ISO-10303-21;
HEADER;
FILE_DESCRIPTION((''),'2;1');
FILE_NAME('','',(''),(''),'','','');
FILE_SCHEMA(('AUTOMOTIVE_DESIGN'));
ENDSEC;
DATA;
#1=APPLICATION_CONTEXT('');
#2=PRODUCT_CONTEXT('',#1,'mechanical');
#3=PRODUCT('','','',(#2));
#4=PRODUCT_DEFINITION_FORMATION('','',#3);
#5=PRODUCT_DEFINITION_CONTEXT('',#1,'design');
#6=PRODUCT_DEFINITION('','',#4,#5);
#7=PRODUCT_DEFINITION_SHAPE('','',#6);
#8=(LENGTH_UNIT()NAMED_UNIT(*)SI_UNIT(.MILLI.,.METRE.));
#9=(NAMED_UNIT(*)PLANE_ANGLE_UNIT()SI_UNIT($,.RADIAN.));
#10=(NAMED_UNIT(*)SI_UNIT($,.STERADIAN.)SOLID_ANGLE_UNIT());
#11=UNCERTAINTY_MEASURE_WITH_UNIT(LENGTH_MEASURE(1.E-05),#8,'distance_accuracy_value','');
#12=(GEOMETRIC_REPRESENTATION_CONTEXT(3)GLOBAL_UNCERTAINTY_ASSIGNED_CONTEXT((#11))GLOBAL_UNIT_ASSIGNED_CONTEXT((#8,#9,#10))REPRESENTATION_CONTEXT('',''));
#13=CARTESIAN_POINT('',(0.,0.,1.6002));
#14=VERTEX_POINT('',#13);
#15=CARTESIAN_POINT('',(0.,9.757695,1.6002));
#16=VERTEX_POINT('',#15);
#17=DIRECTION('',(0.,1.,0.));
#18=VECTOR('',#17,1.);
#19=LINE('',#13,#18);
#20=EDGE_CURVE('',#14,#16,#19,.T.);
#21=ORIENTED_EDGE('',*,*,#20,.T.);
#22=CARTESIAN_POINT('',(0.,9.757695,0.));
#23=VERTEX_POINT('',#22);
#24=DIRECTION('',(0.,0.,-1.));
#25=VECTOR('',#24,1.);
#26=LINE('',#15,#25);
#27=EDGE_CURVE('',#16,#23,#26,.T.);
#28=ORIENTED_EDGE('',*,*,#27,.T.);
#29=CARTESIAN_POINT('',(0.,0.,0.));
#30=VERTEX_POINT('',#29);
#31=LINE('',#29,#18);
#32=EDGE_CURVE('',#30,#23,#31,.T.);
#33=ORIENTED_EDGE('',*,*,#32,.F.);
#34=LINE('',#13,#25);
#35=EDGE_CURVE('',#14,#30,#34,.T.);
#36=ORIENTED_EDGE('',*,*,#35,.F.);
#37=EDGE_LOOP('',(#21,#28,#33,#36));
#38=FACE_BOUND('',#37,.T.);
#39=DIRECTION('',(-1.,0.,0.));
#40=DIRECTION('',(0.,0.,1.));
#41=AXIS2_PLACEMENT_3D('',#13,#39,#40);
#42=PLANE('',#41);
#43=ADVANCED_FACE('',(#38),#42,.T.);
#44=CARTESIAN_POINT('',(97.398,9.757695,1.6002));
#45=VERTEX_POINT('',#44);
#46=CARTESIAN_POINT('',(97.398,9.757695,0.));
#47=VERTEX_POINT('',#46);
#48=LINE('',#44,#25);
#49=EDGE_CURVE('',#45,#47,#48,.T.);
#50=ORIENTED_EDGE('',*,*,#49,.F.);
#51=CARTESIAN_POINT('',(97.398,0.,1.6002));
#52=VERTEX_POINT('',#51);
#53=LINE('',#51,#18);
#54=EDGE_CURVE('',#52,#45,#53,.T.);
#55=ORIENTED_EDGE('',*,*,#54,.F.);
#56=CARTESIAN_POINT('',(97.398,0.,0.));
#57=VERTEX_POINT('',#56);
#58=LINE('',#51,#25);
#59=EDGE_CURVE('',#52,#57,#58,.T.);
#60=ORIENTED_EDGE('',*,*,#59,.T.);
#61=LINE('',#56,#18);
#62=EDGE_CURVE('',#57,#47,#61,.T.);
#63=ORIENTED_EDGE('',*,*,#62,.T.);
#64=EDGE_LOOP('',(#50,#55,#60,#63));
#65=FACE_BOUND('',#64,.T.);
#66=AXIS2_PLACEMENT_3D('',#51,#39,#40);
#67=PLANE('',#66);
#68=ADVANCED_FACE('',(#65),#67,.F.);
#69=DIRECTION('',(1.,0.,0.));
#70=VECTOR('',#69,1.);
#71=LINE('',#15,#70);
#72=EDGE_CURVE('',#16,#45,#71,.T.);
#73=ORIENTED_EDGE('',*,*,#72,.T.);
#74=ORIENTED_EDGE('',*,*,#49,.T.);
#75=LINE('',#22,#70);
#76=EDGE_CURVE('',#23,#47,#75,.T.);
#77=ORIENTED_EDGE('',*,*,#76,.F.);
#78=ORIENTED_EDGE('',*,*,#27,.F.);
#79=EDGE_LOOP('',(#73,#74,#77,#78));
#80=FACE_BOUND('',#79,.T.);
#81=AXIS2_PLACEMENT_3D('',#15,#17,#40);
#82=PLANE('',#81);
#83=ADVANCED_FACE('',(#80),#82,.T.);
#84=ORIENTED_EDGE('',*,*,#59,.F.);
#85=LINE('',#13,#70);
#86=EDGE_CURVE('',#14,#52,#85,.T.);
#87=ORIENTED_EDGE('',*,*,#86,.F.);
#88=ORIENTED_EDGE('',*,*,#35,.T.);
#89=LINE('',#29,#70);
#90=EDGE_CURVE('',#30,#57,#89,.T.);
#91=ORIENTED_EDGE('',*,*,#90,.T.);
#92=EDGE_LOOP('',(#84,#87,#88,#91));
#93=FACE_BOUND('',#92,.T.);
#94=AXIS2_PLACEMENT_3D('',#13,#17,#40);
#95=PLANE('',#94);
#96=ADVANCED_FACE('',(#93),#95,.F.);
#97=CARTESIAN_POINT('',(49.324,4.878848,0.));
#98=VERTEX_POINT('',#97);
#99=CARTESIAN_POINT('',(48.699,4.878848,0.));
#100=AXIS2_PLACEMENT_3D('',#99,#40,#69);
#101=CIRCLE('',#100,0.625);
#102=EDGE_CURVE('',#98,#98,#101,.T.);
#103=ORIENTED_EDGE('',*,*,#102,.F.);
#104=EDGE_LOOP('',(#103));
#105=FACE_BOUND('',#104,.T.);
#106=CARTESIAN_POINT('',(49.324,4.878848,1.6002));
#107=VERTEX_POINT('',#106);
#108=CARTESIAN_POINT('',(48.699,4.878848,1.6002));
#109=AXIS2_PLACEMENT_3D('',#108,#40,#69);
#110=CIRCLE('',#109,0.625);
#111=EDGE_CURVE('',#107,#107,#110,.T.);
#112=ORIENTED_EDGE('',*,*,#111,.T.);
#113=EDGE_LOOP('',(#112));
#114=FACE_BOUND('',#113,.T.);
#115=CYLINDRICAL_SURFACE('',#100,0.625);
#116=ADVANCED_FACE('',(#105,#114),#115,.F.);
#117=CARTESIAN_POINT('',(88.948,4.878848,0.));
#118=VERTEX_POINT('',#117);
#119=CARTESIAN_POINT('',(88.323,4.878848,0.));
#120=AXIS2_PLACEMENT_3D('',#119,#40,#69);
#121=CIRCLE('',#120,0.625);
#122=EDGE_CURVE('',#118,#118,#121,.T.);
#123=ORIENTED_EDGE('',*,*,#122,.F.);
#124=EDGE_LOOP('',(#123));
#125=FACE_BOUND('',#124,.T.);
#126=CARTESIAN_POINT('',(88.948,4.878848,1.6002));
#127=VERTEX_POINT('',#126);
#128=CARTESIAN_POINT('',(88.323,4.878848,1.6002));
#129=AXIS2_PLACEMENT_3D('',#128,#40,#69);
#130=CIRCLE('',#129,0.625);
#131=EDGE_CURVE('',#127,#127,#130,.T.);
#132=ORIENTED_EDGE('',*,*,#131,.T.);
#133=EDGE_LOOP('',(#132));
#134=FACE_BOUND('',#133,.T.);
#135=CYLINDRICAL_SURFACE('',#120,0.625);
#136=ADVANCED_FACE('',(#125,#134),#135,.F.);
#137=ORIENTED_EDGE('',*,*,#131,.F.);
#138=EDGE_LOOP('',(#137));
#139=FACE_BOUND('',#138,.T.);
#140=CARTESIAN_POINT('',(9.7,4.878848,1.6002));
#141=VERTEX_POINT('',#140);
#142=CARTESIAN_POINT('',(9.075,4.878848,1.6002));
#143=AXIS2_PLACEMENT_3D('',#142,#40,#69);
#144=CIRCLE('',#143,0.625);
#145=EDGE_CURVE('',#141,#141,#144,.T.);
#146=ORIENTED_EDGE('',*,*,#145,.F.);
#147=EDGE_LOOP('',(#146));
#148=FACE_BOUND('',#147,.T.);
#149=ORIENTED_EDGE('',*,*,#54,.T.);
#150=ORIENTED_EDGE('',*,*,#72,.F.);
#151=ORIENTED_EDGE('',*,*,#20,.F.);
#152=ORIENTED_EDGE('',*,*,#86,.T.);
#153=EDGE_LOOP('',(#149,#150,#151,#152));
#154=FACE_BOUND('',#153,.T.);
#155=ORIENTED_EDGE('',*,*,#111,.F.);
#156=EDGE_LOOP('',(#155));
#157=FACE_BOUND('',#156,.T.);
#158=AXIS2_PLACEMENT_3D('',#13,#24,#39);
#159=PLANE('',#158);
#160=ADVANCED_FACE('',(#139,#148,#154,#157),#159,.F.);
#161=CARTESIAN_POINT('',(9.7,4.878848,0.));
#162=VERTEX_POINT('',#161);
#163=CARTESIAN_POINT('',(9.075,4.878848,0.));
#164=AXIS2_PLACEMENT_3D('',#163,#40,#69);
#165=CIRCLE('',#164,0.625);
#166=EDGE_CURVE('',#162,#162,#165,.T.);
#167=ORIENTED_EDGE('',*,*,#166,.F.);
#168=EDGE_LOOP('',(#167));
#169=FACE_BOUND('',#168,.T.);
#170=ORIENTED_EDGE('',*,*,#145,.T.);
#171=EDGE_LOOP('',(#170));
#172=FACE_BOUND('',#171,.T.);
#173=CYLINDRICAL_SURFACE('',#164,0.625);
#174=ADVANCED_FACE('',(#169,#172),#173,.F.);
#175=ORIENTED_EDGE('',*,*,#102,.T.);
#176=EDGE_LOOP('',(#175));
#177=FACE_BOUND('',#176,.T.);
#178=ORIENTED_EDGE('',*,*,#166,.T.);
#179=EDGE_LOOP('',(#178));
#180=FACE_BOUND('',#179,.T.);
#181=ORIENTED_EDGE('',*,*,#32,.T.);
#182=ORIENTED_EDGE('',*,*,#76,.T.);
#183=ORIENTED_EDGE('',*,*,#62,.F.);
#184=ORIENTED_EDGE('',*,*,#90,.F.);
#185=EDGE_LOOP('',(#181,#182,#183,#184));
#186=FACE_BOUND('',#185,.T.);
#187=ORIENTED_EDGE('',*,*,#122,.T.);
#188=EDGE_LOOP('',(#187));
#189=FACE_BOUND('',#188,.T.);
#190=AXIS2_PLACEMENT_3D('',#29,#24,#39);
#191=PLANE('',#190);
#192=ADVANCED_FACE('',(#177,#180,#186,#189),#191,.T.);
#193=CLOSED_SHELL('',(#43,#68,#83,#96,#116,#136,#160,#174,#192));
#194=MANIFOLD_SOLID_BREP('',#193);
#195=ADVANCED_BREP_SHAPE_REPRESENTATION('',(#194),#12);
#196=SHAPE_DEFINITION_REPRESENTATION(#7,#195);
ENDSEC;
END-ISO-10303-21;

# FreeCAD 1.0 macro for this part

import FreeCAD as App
import Part
import Sketcher

V = App.Vector
Q = App.Units.Quantity

doc = App.newDocument("Part")
body = doc.addObject("PartDesign::Body", "Body")

sketch1 = body.newObject("Sketcher::SketchObject", "Sketch")
sketch1.AttachmentSupport = (doc.getObject("XY_Plane"), [""])
sketch1.MapMode = "FlatFace"
sketch1.addGeometry([
    Part.LineSegment(V(0, 10, 0), V(0, 0, 0)),
    Part.LineSegment(V(0, 0, 0), V(97, 0, 0)),
    Part.LineSegment(V(97, 0, 0), V(97, 10, 0)),
    Part.LineSegment(V(97, 10, 0), V(0, 10, 0)),
], False)
sketch1.addConstraint([
    Sketcher.Constraint("Coincident", 0, 2, 1, 1),
    Sketcher.Constraint("Coincident", 1, 2, 2, 1),
    Sketcher.Constraint("Coincident", 2, 2, 3, 1),
    Sketcher.Constraint("Coincident", 3, 2, 0, 1),
    Sketcher.Constraint("Vertical", 0),
    Sketcher.Constraint("Horizontal", 1),
    Sketcher.Constraint("Vertical", 2),
    Sketcher.Constraint("Horizontal", 3),
    Sketcher.Constraint("Coincident", 0, 2, -1, 1),
    Sketcher.Constraint("DistanceX", 1, 1, 1, 2, 97.398),
    Sketcher.Constraint("DistanceY", 0, 2, 0, 1, 9.757695),
])
pad1 = body.newObject("PartDesign::Pad", "Pad")
pad1.Profile = sketch1
pad1.Length = Q("0.063 in")

sketch2 = body.newObject("Sketcher::SketchObject", "Sketch001")
sketch2.AttachmentSupport = (doc.getObject("XY_Plane"), [""])
sketch2.MapMode = "FlatFace"
sketch2.AttachmentOffset = App.Placement(V(0, 0, 0.063 * 25.4), App.Rotation())
sketch2.addGeometry([
    Part.Circle(V(9.1, 4.9, 0), V(0, 0, 1), 0.6),
    Part.Circle(V(48.7, 4.9, 0), V(0, 0, 1), 0.6),
    Part.Circle(V(88.3, 4.9, 0), V(0, 0, 1), 0.6),
], False)
sketch2.addConstraint([
    Sketcher.Constraint("Equal", 0, 1),
    Sketcher.Constraint("Equal", 1, 2),
    Sketcher.Constraint("Horizontal", 0, 3, 1, 3),
    Sketcher.Constraint("Horizontal", 1, 3, 2, 3),
    Sketcher.Constraint("Diameter", 0, 1.25),
    Sketcher.Constraint("DistanceX", 0, 3, 1, 3, Q("1.56 in")),
    Sketcher.Constraint("DistanceX", 1, 3, 2, 3, Q("1.56 in")),
    Sketcher.Constraint("DistanceX", -1, 1, 0, 3, 9.075),
    Sketcher.Constraint("DistanceY", -1, 1, 0, 3, 4.878848),
])
pocket1 = body.newObject("PartDesign::Pocket", "Pocket")
pocket1.Profile = sketch2
pocket1.Type = "ThroughAll"

doc.recompute()
